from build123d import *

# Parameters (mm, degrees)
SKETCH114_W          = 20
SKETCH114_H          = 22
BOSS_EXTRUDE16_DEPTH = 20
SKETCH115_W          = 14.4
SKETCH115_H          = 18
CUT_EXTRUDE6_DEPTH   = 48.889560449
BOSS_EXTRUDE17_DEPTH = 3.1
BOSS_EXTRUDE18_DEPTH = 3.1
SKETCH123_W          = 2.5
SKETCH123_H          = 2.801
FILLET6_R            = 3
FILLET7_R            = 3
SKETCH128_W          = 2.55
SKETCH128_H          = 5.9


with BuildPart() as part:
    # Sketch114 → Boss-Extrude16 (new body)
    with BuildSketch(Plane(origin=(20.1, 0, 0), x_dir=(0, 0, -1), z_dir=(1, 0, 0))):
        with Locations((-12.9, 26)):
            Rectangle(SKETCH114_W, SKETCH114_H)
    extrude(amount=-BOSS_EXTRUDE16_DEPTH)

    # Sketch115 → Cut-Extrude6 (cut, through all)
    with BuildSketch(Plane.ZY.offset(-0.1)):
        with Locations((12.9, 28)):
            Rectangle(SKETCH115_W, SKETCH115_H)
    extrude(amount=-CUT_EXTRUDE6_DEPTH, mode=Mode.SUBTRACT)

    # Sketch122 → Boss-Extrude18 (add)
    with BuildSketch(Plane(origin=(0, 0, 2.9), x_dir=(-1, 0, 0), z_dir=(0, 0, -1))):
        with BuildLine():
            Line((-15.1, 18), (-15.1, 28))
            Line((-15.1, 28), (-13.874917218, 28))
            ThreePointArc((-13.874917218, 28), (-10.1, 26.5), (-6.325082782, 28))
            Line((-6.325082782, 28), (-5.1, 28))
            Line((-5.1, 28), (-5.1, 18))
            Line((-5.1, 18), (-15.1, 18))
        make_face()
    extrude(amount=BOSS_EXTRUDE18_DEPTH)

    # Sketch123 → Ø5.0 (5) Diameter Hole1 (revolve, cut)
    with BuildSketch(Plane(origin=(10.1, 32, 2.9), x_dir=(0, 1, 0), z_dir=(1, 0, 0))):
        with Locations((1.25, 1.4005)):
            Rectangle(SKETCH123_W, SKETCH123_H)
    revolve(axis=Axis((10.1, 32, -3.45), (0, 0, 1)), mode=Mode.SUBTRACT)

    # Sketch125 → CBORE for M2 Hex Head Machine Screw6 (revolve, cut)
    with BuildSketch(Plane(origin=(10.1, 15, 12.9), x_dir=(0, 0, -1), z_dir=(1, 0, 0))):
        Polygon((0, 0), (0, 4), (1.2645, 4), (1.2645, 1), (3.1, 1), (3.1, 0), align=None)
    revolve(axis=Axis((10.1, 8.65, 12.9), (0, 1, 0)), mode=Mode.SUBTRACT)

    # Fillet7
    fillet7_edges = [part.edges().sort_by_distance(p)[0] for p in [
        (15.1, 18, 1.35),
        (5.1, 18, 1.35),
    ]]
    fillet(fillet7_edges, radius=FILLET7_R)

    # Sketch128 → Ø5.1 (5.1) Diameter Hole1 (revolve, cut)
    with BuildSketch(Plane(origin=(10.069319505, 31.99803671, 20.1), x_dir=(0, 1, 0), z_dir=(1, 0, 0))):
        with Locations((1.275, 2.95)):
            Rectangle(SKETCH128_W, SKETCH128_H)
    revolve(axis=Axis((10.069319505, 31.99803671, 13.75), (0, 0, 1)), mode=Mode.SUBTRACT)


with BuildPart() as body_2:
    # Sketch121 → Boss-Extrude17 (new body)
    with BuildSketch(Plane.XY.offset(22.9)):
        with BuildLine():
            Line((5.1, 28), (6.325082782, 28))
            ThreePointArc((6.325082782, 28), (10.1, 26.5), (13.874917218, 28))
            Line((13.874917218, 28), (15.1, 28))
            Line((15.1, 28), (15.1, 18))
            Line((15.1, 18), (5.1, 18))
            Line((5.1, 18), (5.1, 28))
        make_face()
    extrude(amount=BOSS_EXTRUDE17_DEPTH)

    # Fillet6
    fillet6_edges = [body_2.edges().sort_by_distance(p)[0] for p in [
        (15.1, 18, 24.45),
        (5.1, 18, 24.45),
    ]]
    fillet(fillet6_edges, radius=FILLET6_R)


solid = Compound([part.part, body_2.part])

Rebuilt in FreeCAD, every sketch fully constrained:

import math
import FreeCAD as App
import Part
import Sketcher


def edges_at(feature, points):
    """Names of the edges that pass closest to the given points."""
    edges = feature.Shape.Edges
    near = lambda p: min(range(len(edges)), key=lambda i: edges[i].distToShape(Part.Vertex(*p))[0])
    return sorted({f"Edge{near(p) + 1}" for p in points})


def add_polygon(sketch, points):
    """Adds a closed chain of lines whose ends are joined by coincident constraints."""
    first, n = sketch.GeometryCount, len(points)
    for a, b in zip(points, points[1:] + points[:1]):
        sketch.addGeometry(Part.LineSegment(App.Vector(*a, 0), App.Vector(*b, 0)), False)
    for i in range(n):
        sketch.addConstraint(Sketcher.Constraint("Coincident", first + i, 2, first + (i + 1) % n, 1))

doc = App.newDocument("Part")
params = doc.addObject("Spreadsheet::Sheet", "Params")
for row, (alias, value) in enumerate([
    ("sketch1_width", "22 mm"),
    ("sketch1_height", "20 mm"),
    ("pad1_length", "20 mm"),
    ("sketch2_width", "18 mm"),
    ("sketch2_height", "14.4 mm"),
    ("sketch3_radius", "5.5 mm"),
    ("sketch3_width", "10 mm"),
    ("pad2_length", "3.1 mm"),
    ("sketch4_width", "2.5 mm"),
    ("groove_angle", "360 deg"),
    ("sketch5_width", "4 mm"),
    ("sketch5_width2", "1 mm"),
    ("sketch5_height", "3.1 mm"),
    ("groove2_angle", "360 deg"),
    ("fillet_radius", "3 mm"),
    ("sketch6_height", "5.9 mm"),
    ("sketch6_width", "2.55 mm"),
    ("groove3_angle", "360 deg"),
    ("sketch7_radius", "5.5 mm"),
    ("sketch7_width", "10 mm"),
    ("pad3_length", "3.1 mm"),
    ("fillet2_radius", "3 mm"),
], start=1):
    params.set(f"A{row}", alias)
    params.set(f"B{row}", "=" + value)
    params.setAlias(f"B{row}", alias)

body = doc.addObject("PartDesign::Body", "Body")

# Sketch on YZ plane
sketch1 = body.newObject("Sketcher::SketchObject", "Sketch")
sketch1.AttachmentSupport = (doc.getObject("YZ_Plane"), [""])
sketch1.MapMode = "FlatFace"
sketch1.AttachmentOffset = App.Placement(App.Vector(0, 0, 20.1), App.Rotation())
add_polygon(sketch1, [(37, 22.9), (15, 22.9), (15, 2.9), (37, 2.9)])  # lines 0-3
sketch1.addConstraint(Sketcher.Constraint("Horizontal", 0))
sketch1.addConstraint(Sketcher.Constraint("Vertical", 1))
sketch1.addConstraint(Sketcher.Constraint("Horizontal", 2))
sketch1.addConstraint(Sketcher.Constraint("Vertical", 3))
sketch1.addConstraint(Sketcher.Constraint("DistanceX", 0, 2, 0, 1, 22.0))
sketch1.addConstraint(Sketcher.Constraint("DistanceY", 1, 2, 1, 1, 20.0))
sketch1.addConstraint(Sketcher.Constraint("DistanceX", -1, 1, 0, 2, 15.0))
sketch1.addConstraint(Sketcher.Constraint("DistanceY", -1, 1, 0, 2, 22.9))
sketch1.setExpression("Constraints[8]", "Params.sketch1_width")
sketch1.setExpression("Constraints[9]", "Params.sketch1_height")
pad1 = body.newObject("PartDesign::Pad", "Pad")
pad1.Profile = sketch1
pad1.setExpression("Length", "Params.pad1_length")
pad1.Reversed = True

# Sketch on YZ plane
sketch2 = body.newObject("Sketcher::SketchObject", "Sketch001")
sketch2.AttachmentSupport = (doc.getObject("YZ_Plane"), [""])
sketch2.MapMode = "FlatFace"
sketch2.AttachmentOffset = App.Placement(App.Vector(0, 0, 0.1), App.Rotation())
add_polygon(sketch2, [(37, 5.7), (19, 5.7), (19, 20.1), (37, 20.1)])  # lines 0-3
sketch2.addConstraint(Sketcher.Constraint("Horizontal", 0))
sketch2.addConstraint(Sketcher.Constraint("Vertical", 1))
sketch2.addConstraint(Sketcher.Constraint("Horizontal", 2))
sketch2.addConstraint(Sketcher.Constraint("Vertical", 3))
sketch2.addConstraint(Sketcher.Constraint("DistanceX", 0, 2, 0, 1, 18.0))
sketch2.addConstraint(Sketcher.Constraint("DistanceY", 1, 1, 1, 2, 14.4))
sketch2.addConstraint(Sketcher.Constraint("DistanceX", -1, 1, 0, 2, 19.0))
sketch2.addConstraint(Sketcher.Constraint("DistanceY", -1, 1, 0, 2, 5.7))
sketch2.setExpression("Constraints[8]", "Params.sketch2_width")
sketch2.setExpression("Constraints[9]", "Params.sketch2_height")
pocket1 = body.newObject("PartDesign::Pocket", "Pocket")
pocket1.Profile = sketch2
pocket1.Type = "ThroughAll"
pocket1.Reversed = True

# Sketch on XY plane
sketch3 = body.newObject("Sketcher::SketchObject", "Sketch002")
sketch3.AttachmentSupport = (doc.getObject("XY_Plane"), [""])
sketch3.MapMode = "FlatFace"
sketch3.AttachmentOffset = App.Placement(App.Vector(0, 0, 2.9), App.Rotation())
sketch3.addGeometry(Part.LineSegment(App.Vector(15.1, 28, 0), App.Vector(15.1, 18, 0)), False)
sketch3.addGeometry(Part.LineSegment(App.Vector(15.1, 18, 0), App.Vector(5.1, 18, 0)), False)
sketch3.addGeometry(Part.LineSegment(App.Vector(5.1, 18, 0), App.Vector(5.1, 28, 0)), False)
sketch3.addGeometry(Part.LineSegment(App.Vector(5.1, 28, 0), App.Vector(6.325083, 28, 0)), False)
sketch3.addGeometry(Part.ArcOfCircle(Part.Circle(App.Vector(10.1, 32, 0), App.Vector(0, 0, 1), 5.5), math.radians(-133.341758), math.radians(-46.658242)), False)
sketch3.addGeometry(Part.LineSegment(App.Vector(13.874917, 28, 0), App.Vector(15.1, 28, 0)), False)
sketch3.addConstraint(Sketcher.Constraint("Coincident", 0, 2, 1, 1))
sketch3.addConstraint(Sketcher.Constraint("Coincident", 1, 2, 2, 1))
sketch3.addConstraint(Sketcher.Constraint("Coincident", 2, 2, 3, 1))
sketch3.addConstraint(Sketcher.Constraint("Coincident", 3, 2, 4, 1))
sketch3.addConstraint(Sketcher.Constraint("Coincident", 4, 2, 5, 1))
sketch3.addConstraint(Sketcher.Constraint("Coincident", 5, 2, 0, 1))
sketch3.addConstraint(Sketcher.Constraint("Vertical", 0))
sketch3.addConstraint(Sketcher.Constraint("Horizontal", 1))
sketch3.addConstraint(Sketcher.Constraint("Vertical", 2))
sketch3.addConstraint(Sketcher.Constraint("Horizontal", 3))
sketch3.addConstraint(Sketcher.Constraint("Horizontal", 5))
sketch3.addConstraint(Sketcher.Constraint("Horizontal", 3, 2, 4, 2))
sketch3.addConstraint(Sketcher.Constraint("Equal", 3, 5))
sketch3.addConstraint(Sketcher.Constraint("Equal", 1, 0))
sketch3.addConstraint(Sketcher.Constraint("Radius", 4, 5.5))
sketch3.addConstraint(Sketcher.Constraint("DistanceX", 1, 2, 1, 1, 10.0))
sketch3.addConstraint(Sketcher.Constraint("DistanceY", -1, 1, 4, 3, 32.0))
sketch3.addConstraint(Sketcher.Constraint("DistanceY", -1, 1, 0, 2, 18.0))
sketch3.addConstraint(Sketcher.Constraint("DistanceX", -1, 1, 4, 3, 10.1))
sketch3.setExpression("Constraints[14]", "Params.sketch3_radius")
sketch3.setExpression("Constraints[15]", "Params.sketch3_width")
pad2 = body.newObject("PartDesign::Pad", "Pad001")
pad2.Profile = sketch3
pad2.setExpression("Length", "Params.pad2_length")
pad2.Reversed = True

# Sketch on YZ plane
sketch4 = body.newObject("Sketcher::SketchObject", "Sketch003")
sketch4.AttachmentSupport = (doc.getObject("YZ_Plane"), [""])
sketch4.MapMode = "FlatFace"
sketch4.AttachmentOffset = App.Placement(App.Vector(0, 0, 10.1), App.Rotation())
add_polygon(sketch4, [(32, 5.701), (32, 2.9), (34.5, 2.9), (34.5, 5.701)])  # lines 0-3
sketch4.addGeometry(Part.LineSegment(App.Vector(32, 2.9, 0), App.Vector(32, 5.701, 0)), True)  # axis
sketch4.addConstraint(Sketcher.Constraint("Vertical", 0))
sketch4.addConstraint(Sketcher.Constraint("Horizontal", 1))
sketch4.addConstraint(Sketcher.Constraint("Vertical", 2))
sketch4.addConstraint(Sketcher.Constraint("Horizontal", 3))
sketch4.addConstraint(Sketcher.Constraint("Vertical", 4))
sketch4.addConstraint(Sketcher.Constraint("Coincident", 4, 1, 0, 2))
sketch4.addConstraint(Sketcher.Constraint("Horizontal", 2, 2, 4, 2))
sketch4.addConstraint(Sketcher.Constraint("DistanceX", 1, 1, 1, 2, 2.5))
sketch4.addConstraint(Sketcher.Constraint("DistanceX", -1, 1, 0, 2, 32.0))
sketch4.addConstraint(Sketcher.Constraint("DistanceY", -1, 1, 0, 2, 2.9))
sketch4.addConstraint(Sketcher.Constraint("DistanceY", 0, 2, 0, 1, 2.801))
sketch4.setExpression("Constraints[11]", "Params.sketch4_width")
groove = body.newObject("PartDesign::Groove", "Groove")
groove.Profile = sketch4
groove.ReferenceAxis = (sketch4, ["Axis0"])
groove.setExpression("Angle", "Params.groove_angle")

# Sketch on YZ plane
sketch5 = body.newObject("Sketcher::SketchObject", "Sketch004")
sketch5.AttachmentSupport = (doc.getObject("YZ_Plane"), [""])
sketch5.MapMode = "FlatFace"
sketch5.AttachmentOffset = App.Placement(App.Vector(0, 0, 10.1), App.Rotation())
add_polygon(sketch5, [(19, 12.9), (15, 12.9), (15, 9.8), (16, 9.8), (16, 11.6355), (19, 11.6355)])  # lines 0-5
sketch5.addGeometry(Part.LineSegment(App.Vector(15, 12.9, 0), App.Vector(19, 12.9, 0)), True)  # axis
sketch5.addConstraint(Sketcher.Constraint("Horizontal", 0))
sketch5.addConstraint(Sketcher.Constraint("Vertical", 1))
sketch5.addConstraint(Sketcher.Constraint("Horizontal", 2))
sketch5.addConstraint(Sketcher.Constraint("Vertical", 3))
sketch5.addConstraint(Sketcher.Constraint("Horizontal", 4))
sketch5.addConstraint(Sketcher.Constraint("Vertical", 5))
sketch5.addConstraint(Sketcher.Constraint("Horizontal", 6))
sketch5.addConstraint(Sketcher.Constraint("Coincident", 6, 1, 0, 2))
sketch5.addConstraint(Sketcher.Constraint("Vertical", 4, 2, 6, 2))
sketch5.addConstraint(Sketcher.Constraint("DistanceX", 0, 2, 0, 1, 4.0))
sketch5.addConstraint(Sketcher.Constraint("DistanceX", 2, 1, 2, 2, 1.0))
sketch5.addConstraint(Sketcher.Constraint("DistanceY", 1, 2, 1, 1, 3.1))
sketch5.addConstraint(Sketcher.Constraint("DistanceX", -1, 1, 0, 2, 15.0))
sketch5.addConstraint(Sketcher.Constraint("DistanceY", -1, 1, 0, 2, 12.9))
sketch5.addConstraint(Sketcher.Constraint("DistanceY", 3, 1, 3, 2, 1.8355))
sketch5.setExpression("Constraints[15]", "Params.sketch5_width")
sketch5.setExpression("Constraints[16]", "Params.sketch5_width2")
sketch5.setExpression("Constraints[17]", "Params.sketch5_height")
groove2 = body.newObject("PartDesign::Groove", "Groove001")
groove2.Profile = sketch5
groove2.ReferenceAxis = (sketch5, ["Axis0"])
groove2.setExpression("Angle", "Params.groove2_angle")
doc.recompute()

fillet = body.newObject("PartDesign::Fillet", "Fillet")
fillet.Base = (groove2, edges_at(groove2, [(15.1, 18, 1.35), (5.1, 18, 1.35)]))
fillet.setExpression("Radius", "Params.fillet_radius")

# Sketch on YZ plane
sketch6 = body.newObject("Sketcher::SketchObject", "Sketch005")
sketch6.AttachmentSupport = (doc.getObject("YZ_Plane"), [""])
sketch6.MapMode = "FlatFace"
sketch6.AttachmentOffset = App.Placement(App.Vector(0, 0, 10.06932), App.Rotation())
add_polygon(sketch6, [(31.998037, 26), (31.998037, 20.1), (34.548037, 20.1), (34.548037, 26)])  # lines 0-3
sketch6.addGeometry(Part.LineSegment(App.Vector(31.998037, 20.1, 0), App.Vector(31.998037, 26, 0)), True)  # axis
sketch6.addConstraint(Sketcher.Constraint("Vertical", 0))
sketch6.addConstraint(Sketcher.Constraint("Horizontal", 1))
sketch6.addConstraint(Sketcher.Constraint("Vertical", 2))
sketch6.addConstraint(Sketcher.Constraint("Horizontal", 3))
sketch6.addConstraint(Sketcher.Constraint("Vertical", 4))
sketch6.addConstraint(Sketcher.Constraint("Coincident", 4, 1, 0, 2))
sketch6.addConstraint(Sketcher.Constraint("Horizontal", 2, 2, 4, 2))
sketch6.addConstraint(Sketcher.Constraint("DistanceY", 0, 2, 0, 1, 5.9))
sketch6.addConstraint(Sketcher.Constraint("DistanceY", -1, 1, 2, 2, 26.0))
sketch6.addConstraint(Sketcher.Constraint("DistanceX", 1, 1, 1, 2, 2.55))
sketch6.addConstraint(Sketcher.Constraint("DistanceX", -1, 1, 0, 2, 31.998037))
sketch6.setExpression("Constraints[11]", "Params.sketch6_height")
sketch6.setExpression("Constraints[13]", "Params.sketch6_width")
groove3 = body.newObject("PartDesign::Groove", "Groove002")
groove3.Profile = sketch6
groove3.ReferenceAxis = (sketch6, ["Axis0"])
groove3.setExpression("Angle", "Params.groove3_angle")
body2 = doc.addObject("PartDesign::Body", "Body001")

# Sketch on XY plane
sketch7 = body2.newObject("Sketcher::SketchObject", "Sketch006")
sketch7.AttachmentSupport = (doc.getObject("XY_Plane001"), [""])
sketch7.MapMode = "FlatFace"
sketch7.AttachmentOffset = App.Placement(App.Vector(0, 0, 22.9), App.Rotation())
sketch7.addGeometry(Part.LineSegment(App.Vector(6.325083, 28, 0), App.Vector(5.1, 28, 0)), False)
sketch7.addGeometry(Part.LineSegment(App.Vector(5.1, 28, 0), App.Vector(5.1, 18, 0)), False)
sketch7.addGeometry(Part.LineSegment(App.Vector(5.1, 18, 0), App.Vector(15.1, 18, 0)), False)
sketch7.addGeometry(Part.LineSegment(App.Vector(15.1, 18, 0), App.Vector(15.1, 28, 0)), False)
sketch7.addGeometry(Part.LineSegment(App.Vector(15.1, 28, 0), App.Vector(13.874917, 28, 0)), False)
sketch7.addGeometry(Part.ArcOfCircle(Part.Circle(App.Vector(10.1, 32, 0), App.Vector(0, 0, 1), 5.5), math.radians(-133.341758), math.radians(-46.658242)), False)
sketch7.addConstraint(Sketcher.Constraint("Coincident", 0, 2, 1, 1))
sketch7.addConstraint(Sketcher.Constraint("Coincident", 1, 2, 2, 1))
sketch7.addConstraint(Sketcher.Constraint("Coincident", 2, 2, 3, 1))
sketch7.addConstraint(Sketcher.Constraint("Coincident", 3, 2, 4, 1))
sketch7.addConstraint(Sketcher.Constraint("Coincident", 4, 2, 5, 2))
sketch7.addConstraint(Sketcher.Constraint("Coincident", 5, 1, 0, 1))
sketch7.addConstraint(Sketcher.Constraint("Horizontal", 0))
sketch7.addConstraint(Sketcher.Constraint("Vertical", 1))
sketch7.addConstraint(Sketcher.Constraint("Horizontal", 2))
sketch7.addConstraint(Sketcher.Constraint("Vertical", 3))
sketch7.addConstraint(Sketcher.Constraint("Horizontal", 4))
sketch7.addConstraint(Sketcher.Constraint("Horizontal", 0, 2, 3, 2))
sketch7.addConstraint(Sketcher.Constraint("Equal", 0, 4))
sketch7.addConstraint(Sketcher.Constraint("Equal", 2, 1))
sketch7.addConstraint(Sketcher.Constraint("Radius", 5, 5.5))
sketch7.addConstraint(Sketcher.Constraint("DistanceX", 2, 1, 2, 2, 10.0))
sketch7.addConstraint(Sketcher.Constraint("DistanceY", -1, 1, 5, 3, 32.0))
sketch7.addConstraint(Sketcher.Constraint("DistanceY", -1, 1, 0, 2, 28.0))
sketch7.addConstraint(Sketcher.Constraint("DistanceX", -1, 1, 5, 3, 10.1))
sketch7.setExpression("Constraints[14]", "Params.sketch7_radius")
sketch7.setExpression("Constraints[15]", "Params.sketch7_width")
pad3 = body2.newObject("PartDesign::Pad", "Pad002")
pad3.Profile = sketch7
pad3.setExpression("Length", "Params.pad3_length")
doc.recompute()

fillet2 = body2.newObject("PartDesign::Fillet", "Fillet001")
fillet2.Base = (pad3, edges_at(pad3, [(15.1, 18, 24.45), (5.1, 18, 24.45)]))
fillet2.setExpression("Radius", "Params.fillet2_radius")

doc.recompute()
